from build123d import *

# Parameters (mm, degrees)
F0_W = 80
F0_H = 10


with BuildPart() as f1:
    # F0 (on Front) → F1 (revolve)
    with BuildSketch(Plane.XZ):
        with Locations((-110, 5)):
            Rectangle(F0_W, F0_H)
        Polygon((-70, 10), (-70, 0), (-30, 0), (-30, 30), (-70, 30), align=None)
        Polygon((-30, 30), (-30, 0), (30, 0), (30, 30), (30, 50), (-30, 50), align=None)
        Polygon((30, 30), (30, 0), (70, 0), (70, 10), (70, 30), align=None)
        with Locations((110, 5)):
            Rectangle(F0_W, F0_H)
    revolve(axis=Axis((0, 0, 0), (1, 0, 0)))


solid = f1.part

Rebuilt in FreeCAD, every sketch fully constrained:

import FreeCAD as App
import Part
import Sketcher

doc = App.newDocument("Part")
params = doc.addObject("Spreadsheet::Sheet", "Params")
for row, (alias, value) in enumerate([
    ("sketch1_width", "300 mm"),
    ("sketch1_width2", "80 mm"),
    ("sketch1_width3", "40 mm"),
    ("sketch1_height", "10 mm"),
    ("sketch1_height2", "20 mm"),
    ("revolution_angle", "360 deg"),
], start=1):
    params.set(f"A{row}", alias)
    params.set(f"B{row}", "=" + value)
    params.setAlias(f"B{row}", alias)

body = doc.addObject("PartDesign::Body", "Body")

sketch1 = body.newObject("Sketcher::SketchObject", "Sketch")
sketch1.AttachmentSupport = (doc.getObject("XZ_Plane"), [""])
sketch1.MapMode = "FlatFace"
sketch1.addGeometry([
    Part.LineSegment(App.Vector(-150, 10, 0), App.Vector(-150, 0, 0)),
    Part.LineSegment(App.Vector(-150, 0, 0), App.Vector(150, 0, 0)),
    Part.LineSegment(App.Vector(150, 0, 0), App.Vector(150, 10, 0)),
    Part.LineSegment(App.Vector(150, 10, 0), App.Vector(70, 10, 0)),
    Part.LineSegment(App.Vector(70, 10, 0), App.Vector(70, 30, 0)),
    Part.LineSegment(App.Vector(70, 30, 0), App.Vector(30, 30, 0)),
    Part.LineSegment(App.Vector(30, 30, 0), App.Vector(30, 50, 0)),
    Part.LineSegment(App.Vector(30, 50, 0), App.Vector(-30, 50, 0)),
    Part.LineSegment(App.Vector(-30, 50, 0), App.Vector(-30, 30, 0)),
    Part.LineSegment(App.Vector(-30, 30, 0), App.Vector(-70, 30, 0)),
    Part.LineSegment(App.Vector(-70, 30, 0), App.Vector(-70, 10, 0)),
    Part.LineSegment(App.Vector(-70, 10, 0), App.Vector(-150, 10, 0)),
], False)
sketch1.addConstraint([
    Sketcher.Constraint("Coincident", 0, 2, 1, 1),
    Sketcher.Constraint("Coincident", 1, 2, 2, 1),
    Sketcher.Constraint("Coincident", 2, 2, 3, 1),
    Sketcher.Constraint("Coincident", 3, 2, 4, 1),
    Sketcher.Constraint("Coincident", 4, 2, 5, 1),
    Sketcher.Constraint("Coincident", 5, 2, 6, 1),
    Sketcher.Constraint("Coincident", 6, 2, 7, 1),
    Sketcher.Constraint("Coincident", 7, 2, 8, 1),
    Sketcher.Constraint("Coincident", 8, 2, 9, 1),
    Sketcher.Constraint("Coincident", 9, 2, 10, 1),
    Sketcher.Constraint("Coincident", 10, 2, 11, 1),
    Sketcher.Constraint("Coincident", 11, 2, 0, 1),
    Sketcher.Constraint("Vertical", 0),
    Sketcher.Constraint("Horizontal", 1),
    Sketcher.Constraint("Vertical", 2),
    Sketcher.Constraint("Horizontal", 3),
    Sketcher.Constraint("Vertical", 4),
    Sketcher.Constraint("Horizontal", 5),
    Sketcher.Constraint("Vertical", 6),
    Sketcher.Constraint("Horizontal", 7),
    Sketcher.Constraint("Vertical", 8),
    Sketcher.Constraint("Horizontal", 9),
    Sketcher.Constraint("Vertical", 10),
    Sketcher.Constraint("Horizontal", 11),
    Sketcher.Constraint("Symmetric", 0, 2, 1, 2, -1, 1),
    Sketcher.Constraint("Symmetric", 5, 2, 8, 2, -2),
    Sketcher.Constraint("Symmetric", 3, 2, 10, 2, -2),
    Sketcher.Constraint("Equal", 4, 6),
    Sketcher.Constraint("DistanceX", 1, 1, 1, 2, 300.0),
    Sketcher.Constraint("DistanceX", 3, 2, 3, 1, 80.0),
    Sketcher.Constraint("DistanceX", 5, 2, 5, 1, 40.0),
    Sketcher.Constraint("DistanceY", 0, 2, 0, 1, 10.0),
    Sketcher.Constraint("DistanceY", 4, 1, 4, 2, 20.0),
])
sketch1.setExpression("Constraints[28]", "Params.sketch1_width")
sketch1.setExpression("Constraints[29]", "Params.sketch1_width2")
sketch1.setExpression("Constraints[30]", "Params.sketch1_width3")
sketch1.setExpression("Constraints[31]", "Params.sketch1_height")
sketch1.setExpression("Constraints[32]", "Params.sketch1_height2")
revolution = body.newObject("PartDesign::Revolution", "Revolution")
revolution.Profile = sketch1
revolution.ReferenceAxis = (sketch1, ["H_Axis"])
revolution.setExpression("Angle", "Params.revolution_angle")

doc.recompute()
